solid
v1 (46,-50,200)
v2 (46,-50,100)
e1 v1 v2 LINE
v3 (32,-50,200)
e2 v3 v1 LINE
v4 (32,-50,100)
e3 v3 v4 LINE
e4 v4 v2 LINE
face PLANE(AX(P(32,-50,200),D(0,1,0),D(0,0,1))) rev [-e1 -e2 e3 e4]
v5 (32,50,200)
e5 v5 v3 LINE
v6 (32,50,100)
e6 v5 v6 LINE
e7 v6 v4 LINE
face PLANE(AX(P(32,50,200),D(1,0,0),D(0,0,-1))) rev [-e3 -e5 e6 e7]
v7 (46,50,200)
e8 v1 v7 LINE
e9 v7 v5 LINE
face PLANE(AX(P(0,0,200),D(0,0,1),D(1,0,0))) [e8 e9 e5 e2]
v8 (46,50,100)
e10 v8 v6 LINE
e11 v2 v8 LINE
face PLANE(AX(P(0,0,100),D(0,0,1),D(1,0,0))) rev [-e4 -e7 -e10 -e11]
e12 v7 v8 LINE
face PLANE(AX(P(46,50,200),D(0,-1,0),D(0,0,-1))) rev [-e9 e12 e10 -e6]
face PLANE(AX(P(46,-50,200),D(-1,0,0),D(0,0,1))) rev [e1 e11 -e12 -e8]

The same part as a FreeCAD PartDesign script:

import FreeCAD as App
import Part
import Sketcher
from FreeCAD import Vector

doc = App.newDocument("Part")
body = doc.addObject("PartDesign::Body", "Body")

# Sketch on XY plane
sketch1 = body.newObject("Sketcher::SketchObject", "Sketch")
sketch1.AttachmentSupport = (doc.getObject("XY_Plane"), [""])
sketch1.MapMode = "FlatFace"
sketch1.AttachmentOffset = App.Placement(Vector(0, 0, 100), App.Rotation())
sketch1.addGeometry(Part.LineSegment(Vector(32, 50, 0), Vector(32, -50, 0)), False)
sketch1.addGeometry(Part.LineSegment(Vector(32, -50, 0), Vector(46, -50, 0)), False)
sketch1.addGeometry(Part.LineSegment(Vector(46, -50, 0), Vector(46, 50, 0)), False)
sketch1.addGeometry(Part.LineSegment(Vector(46, 50, 0), Vector(32, 50, 0)), False)
sketch1.addConstraint(Sketcher.Constraint("Coincident", 0, 2, 1, 1))
sketch1.addConstraint(Sketcher.Constraint("Coincident", 1, 2, 2, 1))
sketch1.addConstraint(Sketcher.Constraint("Coincident", 2, 2, 3, 1))
sketch1.addConstraint(Sketcher.Constraint("Coincident", 3, 2, 0, 1))
sketch1.addConstraint(Sketcher.Constraint("Vertical", 0))
sketch1.addConstraint(Sketcher.Constraint("Horizontal", 1))
sketch1.addConstraint(Sketcher.Constraint("Vertical", 2))
sketch1.addConstraint(Sketcher.Constraint("Horizontal", 3))
sketch1.addConstraint(Sketcher.Constraint("DistanceX", 1, 1, 1, 2, 14.0))
sketch1.addConstraint(Sketcher.Constraint("DistanceY", 0, 2, 0, 1, 100.0))
sketch1.addConstraint(Sketcher.Constraint("DistanceX", -1, 1, 0, 2, 32.0))
sketch1.addConstraint(Sketcher.Constraint("DistanceY", 0, 2, -1, 1, 50.0))
pad1 = body.newObject("PartDesign::Pad", "Pad")
pad1.Profile = sketch1
pad1.Length = 100

doc.recompute()
